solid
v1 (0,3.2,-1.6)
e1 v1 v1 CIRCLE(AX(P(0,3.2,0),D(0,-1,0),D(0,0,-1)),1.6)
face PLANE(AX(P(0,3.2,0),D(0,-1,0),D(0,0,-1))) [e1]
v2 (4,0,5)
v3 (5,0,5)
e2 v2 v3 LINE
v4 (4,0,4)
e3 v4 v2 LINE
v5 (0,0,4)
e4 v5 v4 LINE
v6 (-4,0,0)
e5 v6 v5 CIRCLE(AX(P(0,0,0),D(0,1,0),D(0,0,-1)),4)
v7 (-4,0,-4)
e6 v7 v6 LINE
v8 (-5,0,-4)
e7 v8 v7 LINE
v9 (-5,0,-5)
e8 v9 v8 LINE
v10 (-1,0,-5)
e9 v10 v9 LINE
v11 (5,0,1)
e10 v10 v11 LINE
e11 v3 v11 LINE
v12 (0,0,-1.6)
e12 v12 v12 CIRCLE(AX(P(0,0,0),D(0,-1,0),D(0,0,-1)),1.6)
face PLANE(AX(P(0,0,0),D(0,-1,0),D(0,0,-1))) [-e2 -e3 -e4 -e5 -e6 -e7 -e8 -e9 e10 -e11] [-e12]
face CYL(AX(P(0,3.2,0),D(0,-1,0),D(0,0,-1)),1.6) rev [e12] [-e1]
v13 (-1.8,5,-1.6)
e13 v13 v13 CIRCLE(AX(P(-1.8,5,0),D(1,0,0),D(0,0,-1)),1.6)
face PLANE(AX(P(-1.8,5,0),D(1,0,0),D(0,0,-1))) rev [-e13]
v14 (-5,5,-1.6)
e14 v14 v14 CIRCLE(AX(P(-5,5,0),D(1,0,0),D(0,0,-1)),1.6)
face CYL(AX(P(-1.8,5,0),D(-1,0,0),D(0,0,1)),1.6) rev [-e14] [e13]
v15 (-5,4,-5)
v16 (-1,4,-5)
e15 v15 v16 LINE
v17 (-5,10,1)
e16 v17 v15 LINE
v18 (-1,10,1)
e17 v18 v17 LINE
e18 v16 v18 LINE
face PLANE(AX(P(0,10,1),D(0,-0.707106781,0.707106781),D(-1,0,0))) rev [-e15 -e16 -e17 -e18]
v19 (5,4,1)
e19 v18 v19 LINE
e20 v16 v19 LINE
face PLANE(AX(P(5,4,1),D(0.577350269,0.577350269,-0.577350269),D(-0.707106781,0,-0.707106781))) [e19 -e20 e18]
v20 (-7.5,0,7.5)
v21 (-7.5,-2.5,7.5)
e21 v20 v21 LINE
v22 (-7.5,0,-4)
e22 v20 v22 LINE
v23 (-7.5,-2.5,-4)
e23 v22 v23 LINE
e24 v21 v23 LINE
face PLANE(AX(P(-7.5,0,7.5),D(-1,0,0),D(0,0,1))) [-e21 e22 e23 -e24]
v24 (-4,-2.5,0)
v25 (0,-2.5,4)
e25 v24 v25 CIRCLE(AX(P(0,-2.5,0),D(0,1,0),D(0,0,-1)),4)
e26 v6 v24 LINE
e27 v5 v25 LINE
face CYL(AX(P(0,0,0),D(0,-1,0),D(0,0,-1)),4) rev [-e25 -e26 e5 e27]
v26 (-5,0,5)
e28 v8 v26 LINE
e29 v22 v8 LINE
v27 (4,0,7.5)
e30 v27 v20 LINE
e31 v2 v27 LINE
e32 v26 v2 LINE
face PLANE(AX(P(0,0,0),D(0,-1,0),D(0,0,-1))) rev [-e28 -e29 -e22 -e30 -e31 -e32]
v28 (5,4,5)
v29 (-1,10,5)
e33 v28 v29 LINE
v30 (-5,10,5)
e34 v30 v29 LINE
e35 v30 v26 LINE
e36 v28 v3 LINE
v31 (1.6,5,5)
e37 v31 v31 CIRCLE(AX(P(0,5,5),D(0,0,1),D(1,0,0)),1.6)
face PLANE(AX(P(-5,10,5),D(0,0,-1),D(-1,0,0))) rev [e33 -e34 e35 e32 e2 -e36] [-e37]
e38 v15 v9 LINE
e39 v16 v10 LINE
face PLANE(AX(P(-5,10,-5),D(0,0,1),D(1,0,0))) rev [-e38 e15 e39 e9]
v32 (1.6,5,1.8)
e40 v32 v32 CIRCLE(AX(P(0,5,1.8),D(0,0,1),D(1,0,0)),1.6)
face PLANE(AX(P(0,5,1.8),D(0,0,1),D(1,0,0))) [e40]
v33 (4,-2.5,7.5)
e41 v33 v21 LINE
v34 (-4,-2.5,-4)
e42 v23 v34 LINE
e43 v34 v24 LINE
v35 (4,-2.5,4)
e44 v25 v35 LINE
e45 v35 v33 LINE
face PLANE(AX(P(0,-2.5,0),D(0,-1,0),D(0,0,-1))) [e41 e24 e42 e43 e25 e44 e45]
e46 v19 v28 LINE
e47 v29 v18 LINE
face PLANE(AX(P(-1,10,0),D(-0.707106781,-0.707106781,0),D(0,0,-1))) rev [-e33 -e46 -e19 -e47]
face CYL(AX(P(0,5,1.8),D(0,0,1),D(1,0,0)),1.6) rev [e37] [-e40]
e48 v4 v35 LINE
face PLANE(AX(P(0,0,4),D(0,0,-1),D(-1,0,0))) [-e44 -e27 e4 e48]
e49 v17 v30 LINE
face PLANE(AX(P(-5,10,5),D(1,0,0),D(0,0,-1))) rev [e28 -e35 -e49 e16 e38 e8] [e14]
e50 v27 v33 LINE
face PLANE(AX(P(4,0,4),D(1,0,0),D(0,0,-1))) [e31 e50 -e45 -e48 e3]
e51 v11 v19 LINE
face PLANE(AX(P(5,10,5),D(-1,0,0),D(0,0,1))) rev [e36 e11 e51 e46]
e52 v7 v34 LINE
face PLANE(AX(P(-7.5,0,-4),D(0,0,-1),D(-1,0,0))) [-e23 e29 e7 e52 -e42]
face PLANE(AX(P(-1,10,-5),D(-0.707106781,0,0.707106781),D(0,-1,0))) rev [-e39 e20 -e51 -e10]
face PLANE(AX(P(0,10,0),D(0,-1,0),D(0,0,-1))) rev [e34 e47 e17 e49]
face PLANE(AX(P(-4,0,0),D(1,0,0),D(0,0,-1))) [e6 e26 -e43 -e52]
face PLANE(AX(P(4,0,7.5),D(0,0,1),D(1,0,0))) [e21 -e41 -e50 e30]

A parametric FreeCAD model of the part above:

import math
import FreeCAD as App
import Part
import Sketcher


def edges_at(feature, points):
    """Names of the edges that pass closest to the given points."""
    edges = feature.Shape.Edges
    near = lambda p: min(range(len(edges)), key=lambda i: edges[i].distToShape(Part.Vertex(*p))[0])
    return sorted({f"Edge{near(p) + 1}" for p in points})


def add_polygon(sketch, points):
    """Adds a closed chain of lines whose ends are joined by coincident constraints."""
    first, n = sketch.GeometryCount, len(points)
    for a, b in zip(points, points[1:] + points[:1]):
        sketch.addGeometry(Part.LineSegment(App.Vector(*a, 0), App.Vector(*b, 0)), False)
    for i in range(n):
        sketch.addConstraint(Sketcher.Constraint("Coincident", first + i, 2, first + (i + 1) % n, 1))

doc = App.newDocument("Part")
params = doc.addObject("Spreadsheet::Sheet", "Params")
for row, (alias, value) in enumerate([
    ("sketch1_width", "10 mm"),
    ("pad1_length", "10 mm"),
    ("sketch2_diameter", "3.2 mm"),
    ("pocket1_length", "3.2 mm"),
    ("sketch3_diameter", "3.2 mm"),
    ("pocket2_length", "3.2 mm"),
    ("sketch4_diameter", "3.2 mm"),
    ("pocket3_length", "3.2 mm"),
    ("chamfer_size", "6 mm"),
    ("sketch5_radius", "4 mm"),
    ("sketch5_width", "11.5 mm"),
    ("pad2_length", "2.5 mm"),
], start=1):
    params.set(f"A{row}", alias)
    params.set(f"B{row}", "=" + value)
    params.setAlias(f"B{row}", alias)

body = doc.addObject("PartDesign::Body", "Body")

sketch1 = body.newObject("Sketcher::SketchObject", "Sketch")
sketch1.AttachmentSupport = (doc.getObject("XZ_Plane"), [""])
sketch1.MapMode = "FlatFace"
add_polygon(sketch1, [(-5, -5), (-5, 5), (5, 5), (5, -5)])
sketch1.addConstraint([
    Sketcher.Constraint("Vertical", 0),
    Sketcher.Constraint("Horizontal", 1),
    Sketcher.Constraint("Vertical", 2),
    Sketcher.Constraint("Horizontal", 3),
    Sketcher.Constraint("Symmetric", 0, 2, 2, 2, -1, 1),
    Sketcher.Constraint("Equal", 3, 0),
    Sketcher.Constraint("DistanceX", 1, 1, 1, 2, 10.0),
])
sketch1.setExpression("Constraints[10]", "Params.sketch1_width")
pad1 = body.newObject("PartDesign::Pad", "Pad")
pad1.Profile = sketch1
pad1.setExpression("Length", "Params.pad1_length")
pad1.Reversed = True

sketch2 = body.newObject("Sketcher::SketchObject", "Sketch001")
sketch2.AttachmentSupport = (doc.getObject("XY_Plane"), [""])
sketch2.MapMode = "FlatFace"
sketch2.AttachmentOffset = App.Placement(App.Vector(0, 0, 5), App.Rotation())
sketch2.addGeometry(Part.Circle(App.Vector(0, 5, 0), App.Vector(0, 0, 1), 1.6), False)
sketch2.addConstraint([
    Sketcher.Constraint("PointOnObject", 0, 3, -2),
    Sketcher.Constraint("Diameter", 0, 3.2),
    Sketcher.Constraint("DistanceY", -1, 1, 0, 3, 5.0),
])
sketch2.setExpression("Constraints[1]", "Params.sketch2_diameter")
pocket1 = body.newObject("PartDesign::Pocket", "Pocket")
pocket1.Profile = sketch2
pocket1.setExpression("Length", "Params.pocket1_length")

sketch3 = body.newObject("Sketcher::SketchObject", "Sketch002")
sketch3.AttachmentSupport = (doc.getObject("XZ_Plane"), [""])
sketch3.MapMode = "FlatFace"
sketch3.addGeometry(Part.Circle(App.Vector(0, 0, 0), App.Vector(0, 0, 1), 1.6), False)
sketch3.addConstraint([
    Sketcher.Constraint("Coincident", 0, 3, -1, 1),
    Sketcher.Constraint("Diameter", 0, 3.2),
])
sketch3.setExpression("Constraints[1]", "Params.sketch3_diameter")
pocket2 = body.newObject("PartDesign::Pocket", "Pocket001")
pocket2.Profile = sketch3
pocket2.setExpression("Length", "Params.pocket2_length")

sketch4 = body.newObject("Sketcher::SketchObject", "Sketch003")
sketch4.AttachmentSupport = (doc.getObject("YZ_Plane"), [""])
sketch4.MapMode = "FlatFace"
sketch4.AttachmentOffset = App.Placement(App.Vector(0, 0, -5), App.Rotation())
sketch4.addGeometry(Part.Circle(App.Vector(5, 0, 0), App.Vector(0, 0, 1), 1.6), False)
sketch4.addConstraint([
    Sketcher.Constraint("PointOnObject", 0, 3, -1),
    Sketcher.Constraint("Diameter", 0, 3.2),
    Sketcher.Constraint("DistanceX", -1, 1, 0, 3, 5.0),
])
sketch4.setExpression("Constraints[1]", "Params.sketch4_diameter")
pocket3 = body.newObject("PartDesign::Pocket", "Pocket002")
pocket3.Profile = sketch4
pocket3.setExpression("Length", "Params.pocket3_length")
pocket3.Reversed = True
doc.recompute()

chamfer = body.newObject("PartDesign::Chamfer", "Chamfer")
chamfer.Base = (pocket3, edges_at(pocket3, [(5, 10, 0), (5, 5, -5), (0, 10, -5)]))
chamfer.setExpression("Size", "Params.chamfer_size")

sketch5 = body.newObject("Sketcher::SketchObject", "Sketch004")
sketch5.AttachmentSupport = (doc.getObject("XZ_Plane"), [""])
sketch5.MapMode = "FlatFace"
sketch5.AttachmentOffset = App.Placement(App.Vector(0, 0, 2.5), App.Rotation())
sketch5.addGeometry([
    Part.LineSegment(App.Vector(4, 4, 0), App.Vector(4, 7.5, 0)),
    Part.LineSegment(App.Vector(4, 7.5, 0), App.Vector(-7.5, 7.5, 0)),
    Part.LineSegment(App.Vector(-7.5, 7.5, 0), App.Vector(-7.5, -4, 0)),
    Part.LineSegment(App.Vector(-7.5, -4, 0), App.Vector(-4, -4, 0)),
    Part.LineSegment(App.Vector(-4, -4, 0), App.Vector(-4, 0, 0)),
    Part.ArcOfCircle(Part.Circle(App.Vector(0, 0, 0), App.Vector(0, 0, 1), 4), math.radians(90), math.radians(180)),
    Part.LineSegment(App.Vector(0, 4, 0), App.Vector(4, 4, 0)),
], False)
sketch5.addConstraint([
    Sketcher.Constraint("Coincident", 0, 2, 1, 1),
    Sketcher.Constraint("Coincident", 1, 2, 2, 1),
    Sketcher.Constraint("Coincident", 2, 2, 3, 1),
    Sketcher.Constraint("Coincident", 3, 2, 4, 1),
    Sketcher.Constraint("Tangent", 4, 2, 5, 2),
    Sketcher.Constraint("Tangent", 5, 1, 6, 1),
    Sketcher.Constraint("Coincident", 6, 2, 0, 1),
    Sketcher.Constraint("Vertical", 0),
    Sketcher.Constraint("Horizontal", 1),
    Sketcher.Constraint("Vertical", 2),
    Sketcher.Constraint("Horizontal", 3),
    Sketcher.Constraint("Vertical", 4),
    Sketcher.Constraint("Horizontal", 6),
    Sketcher.Constraint("Coincident", 5, 3, -1, 1),
    Sketcher.Constraint("Symmetric", 3, 2, 6, 2, -1, 1),
    Sketcher.Constraint("Equal", 3, 0),
    Sketcher.Constraint("Radius", 5, 4.0),
    Sketcher.Constraint("DistanceX", 1, 2, 1, 1, 11.5),
])
sketch5.setExpression("Constraints[16]", "Params.sketch5_radius")
sketch5.setExpression("Constraints[17]", "Params.sketch5_width")
pad2 = body.newObject("PartDesign::Pad", "Pad001")
pad2.Profile = sketch5
pad2.setExpression("Length", "Params.pad2_length")
pad2.Reversed = True

doc.recompute()
